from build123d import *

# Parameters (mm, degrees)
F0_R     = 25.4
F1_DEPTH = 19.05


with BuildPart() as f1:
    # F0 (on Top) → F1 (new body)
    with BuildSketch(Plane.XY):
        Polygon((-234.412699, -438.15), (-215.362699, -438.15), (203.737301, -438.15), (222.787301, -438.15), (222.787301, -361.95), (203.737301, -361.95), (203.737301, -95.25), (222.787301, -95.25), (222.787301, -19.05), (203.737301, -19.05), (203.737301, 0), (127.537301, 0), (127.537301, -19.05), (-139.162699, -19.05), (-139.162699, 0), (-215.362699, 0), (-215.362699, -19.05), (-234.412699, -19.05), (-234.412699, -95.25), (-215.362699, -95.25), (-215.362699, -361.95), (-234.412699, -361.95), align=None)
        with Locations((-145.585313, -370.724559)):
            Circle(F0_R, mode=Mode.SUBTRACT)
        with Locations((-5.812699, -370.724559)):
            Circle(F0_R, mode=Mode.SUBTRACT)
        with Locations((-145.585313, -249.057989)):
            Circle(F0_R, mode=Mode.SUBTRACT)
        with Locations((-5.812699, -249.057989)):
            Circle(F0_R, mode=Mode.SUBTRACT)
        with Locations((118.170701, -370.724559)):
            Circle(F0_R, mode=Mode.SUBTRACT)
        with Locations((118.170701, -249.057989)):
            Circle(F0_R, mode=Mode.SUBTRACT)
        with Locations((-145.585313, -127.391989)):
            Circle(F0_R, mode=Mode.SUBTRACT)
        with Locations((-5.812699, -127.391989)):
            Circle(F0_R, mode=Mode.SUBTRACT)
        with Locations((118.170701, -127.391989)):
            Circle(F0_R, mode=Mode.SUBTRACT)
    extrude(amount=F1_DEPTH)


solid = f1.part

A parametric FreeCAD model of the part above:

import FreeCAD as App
import Part
import Sketcher
from FreeCAD import Vector
Q = App.Units.Quantity

doc = App.newDocument("Part")
body = doc.addObject("PartDesign::Body", "Body")

sketch1 = body.newObject("Sketcher::SketchObject", "Sketch")
sketch1.AttachmentSupport = (doc.getObject("XY_Plane"), [""])
sketch1.MapMode = "FlatFace"
sketch1.addGeometry([
    Part.LineSegment(Vector(-234, -438, 0), Vector(223, -438, 0)),
    Part.LineSegment(Vector(223, -438, 0), Vector(223, -362, 0)),
    Part.LineSegment(Vector(223, -362, 0), Vector(204, -362, 0)),
    Part.LineSegment(Vector(204, -362, 0), Vector(204, -95, 0)),
    Part.LineSegment(Vector(204, -95, 0), Vector(223, -95, 0)),
    Part.LineSegment(Vector(223, -95, 0), Vector(223, -19, 0)),
    Part.LineSegment(Vector(223, -19, 0), Vector(204, -19, 0)),
    Part.LineSegment(Vector(204, -19, 0), Vector(204, 0, 0)),
    Part.LineSegment(Vector(204, 0, 0), Vector(128, 0, 0)),
    Part.LineSegment(Vector(128, 0, 0), Vector(128, -19, 0)),
    Part.LineSegment(Vector(128, -19, 0), Vector(-139, -19, 0)),
    Part.LineSegment(Vector(-139, -19, 0), Vector(-139, 0, 0)),
    Part.LineSegment(Vector(-139, 0, 0), Vector(-215, 0, 0)),
    Part.LineSegment(Vector(-215, 0, 0), Vector(-215, -19, 0)),
    Part.LineSegment(Vector(-215, -19, 0), Vector(-234, -19, 0)),
    Part.LineSegment(Vector(-234, -19, 0), Vector(-234, -95, 0)),
    Part.LineSegment(Vector(-234, -95, 0), Vector(-215, -95, 0)),
    Part.LineSegment(Vector(-215, -95, 0), Vector(-215, -362, 0)),
    Part.LineSegment(Vector(-215, -362, 0), Vector(-234, -362, 0)),
    Part.LineSegment(Vector(-234, -362, 0), Vector(-234, -438, 0)),
    Part.Circle(Vector(-146, -371, 0), Vector(0, 0, 1), 25),
    Part.Circle(Vector(-6, -371, 0), Vector(0, 0, 1), 25),
    Part.Circle(Vector(118, -371, 0), Vector(0, 0, 1), 25),
    Part.Circle(Vector(-146, -249, 0), Vector(0, 0, 1), 25),
    Part.Circle(Vector(-146, -127, 0), Vector(0, 0, 1), 25),
    Part.Circle(Vector(-6, -249, 0), Vector(0, 0, 1), 25),
    Part.Circle(Vector(118, -249, 0), Vector(0, 0, 1), 25),
    Part.Circle(Vector(-6, -127, 0), Vector(0, 0, 1), 25),
    Part.Circle(Vector(118, -127, 0), Vector(0, 0, 1), 25),
], False)
sketch1.addConstraint([
    Sketcher.Constraint("Coincident", 0, 2, 1, 1),
    Sketcher.Constraint("Coincident", 1, 2, 2, 1),
    Sketcher.Constraint("Coincident", 2, 2, 3, 1),
    Sketcher.Constraint("Coincident", 3, 2, 4, 1),
    Sketcher.Constraint("Coincident", 4, 2, 5, 1),
    Sketcher.Constraint("Coincident", 5, 2, 6, 1),
    Sketcher.Constraint("Coincident", 6, 2, 7, 1),
    Sketcher.Constraint("Coincident", 7, 2, 8, 1),
    Sketcher.Constraint("Coincident", 8, 2, 9, 1),
    Sketcher.Constraint("Coincident", 9, 2, 10, 1),
    Sketcher.Constraint("Coincident", 10, 2, 11, 1),
    Sketcher.Constraint("Coincident", 11, 2, 12, 1),
    Sketcher.Constraint("Coincident", 12, 2, 13, 1),
    Sketcher.Constraint("Coincident", 13, 2, 14, 1),
    Sketcher.Constraint("Coincident", 14, 2, 15, 1),
    Sketcher.Constraint("Coincident", 15, 2, 16, 1),
    Sketcher.Constraint("Coincident", 16, 2, 17, 1),
    Sketcher.Constraint("Coincident", 17, 2, 18, 1),
    Sketcher.Constraint("Coincident", 18, 2, 19, 1),
    Sketcher.Constraint("Coincident", 19, 2, 0, 1),
    Sketcher.Constraint("Horizontal", 0),
    Sketcher.Constraint("Vertical", 1),
    Sketcher.Constraint("Horizontal", 2),
    Sketcher.Constraint("Vertical", 3),
    Sketcher.Constraint("Horizontal", 4),
    Sketcher.Constraint("Vertical", 5),
    Sketcher.Constraint("Horizontal", 6),
    Sketcher.Constraint("Vertical", 7),
    Sketcher.Constraint("Horizontal", 8),
    Sketcher.Constraint("Vertical", 9),
    Sketcher.Constraint("Horizontal", 10),
    Sketcher.Constraint("Vertical", 11),
    Sketcher.Constraint("Horizontal", 12),
    Sketcher.Constraint("Vertical", 13),
    Sketcher.Constraint("Horizontal", 14),
    Sketcher.Constraint("Vertical", 15),
    Sketcher.Constraint("Horizontal", 16),
    Sketcher.Constraint("Vertical", 17),
    Sketcher.Constraint("Horizontal", 18),
    Sketcher.Constraint("Vertical", 19),
    Sketcher.Constraint("Equal", 20, 21),
    Sketcher.Constraint("Equal", 21, 22),
    Sketcher.Constraint("Equal", 22, 23),
    Sketcher.Constraint("Equal", 23, 24),
    Sketcher.Constraint("Equal", 24, 25),
    Sketcher.Constraint("Equal", 25, 26),
    Sketcher.Constraint("Equal", 26, 27),
    Sketcher.Constraint("Equal", 27, 28),
    Sketcher.Constraint("PointOnObject", 7, 2, -1),
    Sketcher.Constraint("PointOnObject", 11, 2, -1),
    Sketcher.Constraint("Horizontal", 20, 3, 21, 3),
    Sketcher.Constraint("Horizontal", 21, 3, 22, 3),
    Sketcher.Constraint("Horizontal", 23, 3, 25, 3),
    Sketcher.Constraint("Horizontal", 25, 3, 26, 3),
    Sketcher.Constraint("Horizontal", 24, 3, 27, 3),
    Sketcher.Constraint("Horizontal", 27, 3, 28, 3),
    Sketcher.Constraint("Horizontal", 6, 2, 9, 2),
    Sketcher.Constraint("Horizontal", 10, 2, 13, 2),
    Sketcher.Constraint("Horizontal", 4, 2, 15, 2),
    Sketcher.Constraint("Horizontal", 2, 2, 17, 2),
    Sketcher.Constraint("Vertical", 20, 3, 23, 3),
    Sketcher.Constraint("Vertical", 23, 3, 24, 3),
    Sketcher.Constraint("Vertical", 21, 3, 25, 3),
    Sketcher.Constraint("Vertical", 22, 3, 26, 3),
    Sketcher.Constraint("Vertical", 25, 3, 27, 3),
    Sketcher.Constraint("Vertical", 26, 3, 28, 3),
    Sketcher.Constraint("Vertical", 1, 2, 4, 2),
    Sketcher.Constraint("Vertical", 3, 2, 6, 2),
    Sketcher.Constraint("Vertical", 13, 2, 16, 2),
    Sketcher.Constraint("Vertical", 15, 2, 18, 2),
    Sketcher.Constraint("Equal", 8, 12),
    Sketcher.Constraint("Equal", 6, 14),
    Sketcher.Constraint("Equal", 12, 1),
    Sketcher.Constraint("Equal", 10, 3),
    Sketcher.Constraint("Equal", 1, 5),
    Sketcher.Constraint("Equal", 18, 7),
    Sketcher.Constraint("Diameter", 20, Q("2 in")),
    Sketcher.Constraint("DistanceX", 0, 1, 0, 2, Q("18 in")),
    Sketcher.Constraint("DistanceX", 8, 2, 8, 1, Q("3 in")),
    Sketcher.Constraint("DistanceX", 10, 2, 10, 1, Q("10.5 in")),
    Sketcher.Constraint("DistanceX", 21, 3, 0, 2, Q("9 in")),
    Sketcher.Constraint("DistanceY", 23, 3, 24, 3, Q("4.79 in")),
    Sketcher.Constraint("DistanceX", 21, 3, -1, 1, 5.812699),
    Sketcher.Constraint("DistanceX", -1, 1, 22, 3, 118.170701),
    Sketcher.Constraint("DistanceY", 20, 3, -1, 1, 370.724559),
    Sketcher.Constraint("DistanceY", 23, 3, -1, 1, 249.057989),
    Sketcher.Constraint("DistanceX", 20, 3, -1, 1, 145.585313),
])
pad1 = body.newObject("PartDesign::Pad", "Pad")
pad1.Profile = sketch1
pad1.Length = Q("0.75 in")

doc.recompute()
